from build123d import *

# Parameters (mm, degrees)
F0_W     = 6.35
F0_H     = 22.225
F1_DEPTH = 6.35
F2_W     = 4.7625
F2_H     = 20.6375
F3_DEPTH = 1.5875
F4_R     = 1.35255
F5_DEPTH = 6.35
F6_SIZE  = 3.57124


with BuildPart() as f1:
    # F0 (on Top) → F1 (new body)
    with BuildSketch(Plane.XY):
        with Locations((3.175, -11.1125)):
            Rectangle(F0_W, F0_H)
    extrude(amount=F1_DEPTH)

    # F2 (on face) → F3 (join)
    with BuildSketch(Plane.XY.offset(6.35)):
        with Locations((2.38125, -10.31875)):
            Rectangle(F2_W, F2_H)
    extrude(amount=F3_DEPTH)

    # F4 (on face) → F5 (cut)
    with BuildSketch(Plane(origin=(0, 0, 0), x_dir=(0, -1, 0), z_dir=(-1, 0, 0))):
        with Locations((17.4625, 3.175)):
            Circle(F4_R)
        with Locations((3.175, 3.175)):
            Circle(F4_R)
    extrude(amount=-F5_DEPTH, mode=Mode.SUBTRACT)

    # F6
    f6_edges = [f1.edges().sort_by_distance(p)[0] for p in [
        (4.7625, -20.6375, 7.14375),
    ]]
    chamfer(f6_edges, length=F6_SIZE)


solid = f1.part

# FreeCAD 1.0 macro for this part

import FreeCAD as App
import Part
import Sketcher

V = App.Vector
Q = App.Units.Quantity


def edges_at(feature, points):
    """Names of the edges that pass closest to the given points."""
    edges = feature.Shape.Edges
    near = lambda p: min(range(len(edges)), key=lambda i: edges[i].distToShape(Part.Vertex(*p))[0])
    return sorted({f"Edge{near(p) + 1}" for p in points})

doc = App.newDocument("Part")
params = doc.addObject("Spreadsheet::Sheet", "Params")
for row, (alias, value) in enumerate([
    ("sketch1_width", "0.25 in"),
    ("sketch1_height", "0.875 in"),
    ("pad1_length", "0.25 in"),
    ("sketch2_width", "0.1875 in"),
    ("sketch2_height", "0.8125 in"),
    ("pad2_length", "0.0625 in"),
    ("pocket1_length", "0.25 in"),
    ("chamfer_size", "0.1406 in"),
], start=1):
    params.set(f"A{row}", alias)
    params.set(f"B{row}", "=" + value)
    params.setAlias(f"B{row}", alias)

body = doc.addObject("PartDesign::Body", "Body")

sketch1 = doc.addObject("Sketcher::SketchObject", "Sketch")
body.addObject(sketch1)
sketch1.AttachmentSupport = (doc.XY_Plane, [""])
sketch1.MapMode = "FlatFace"
sketch1.addGeometry(Part.LineSegment(V(0, 0, 0), V(0, -22, 0)), False)
sketch1.addGeometry(Part.LineSegment(V(0, -22, 0), V(6, -22, 0)), False)
sketch1.addGeometry(Part.LineSegment(V(6, -22, 0), V(6, 0, 0)), False)
sketch1.addGeometry(Part.LineSegment(V(6, 0, 0), V(0, 0, 0)), False)
sketch1.addConstraint(Sketcher.Constraint("Coincident", 0, 2, 1, 1))
sketch1.addConstraint(Sketcher.Constraint("Coincident", 1, 2, 2, 1))
sketch1.addConstraint(Sketcher.Constraint("Coincident", 2, 2, 3, 1))
sketch1.addConstraint(Sketcher.Constraint("Coincident", 3, 2, 0, 1))
sketch1.addConstraint(Sketcher.Constraint("Vertical", 0))
sketch1.addConstraint(Sketcher.Constraint("Horizontal", 1))
sketch1.addConstraint(Sketcher.Constraint("Vertical", 2))
sketch1.addConstraint(Sketcher.Constraint("Horizontal", 3))
sketch1.addConstraint(Sketcher.Constraint("Coincident", 3, 2, -1, 1))
sketch1.addConstraint(Sketcher.Constraint("DistanceX", 1, 1, 1, 2, Q("0.25 in")))
sketch1.addConstraint(Sketcher.Constraint("DistanceY", 0, 2, 0, 1, Q("0.875 in")))
sketch1.setExpression("Constraints[9]", "Params.sketch1_width")
sketch1.setExpression("Constraints[10]", "Params.sketch1_height")
pad1 = doc.addObject("PartDesign::Pad", "Pad")
body.addObject(pad1)
pad1.Profile = sketch1
pad1.setExpression("Length", "Params.pad1_length")

sketch2 = doc.addObject("Sketcher::SketchObject", "Sketch001")
body.addObject(sketch2)
sketch2.AttachmentSupport = (doc.XY_Plane, [""])
sketch2.MapMode = "FlatFace"
sketch2.AttachmentOffset = App.Placement(V(0, 0, 0.25 * 25.4), App.Rotation())
sketch2.addGeometry(Part.LineSegment(V(0, 0, 0), V(0, -20.6, 0)), False)
sketch2.addGeometry(Part.LineSegment(V(0, -20.6, 0), V(4.8, -20.6, 0)), False)
sketch2.addGeometry(Part.LineSegment(V(4.8, -20.6, 0), V(4.8, 0, 0)), False)
sketch2.addGeometry(Part.LineSegment(V(4.8, 0, 0), V(0, 0, 0)), False)
sketch2.addConstraint(Sketcher.Constraint("Coincident", 0, 2, 1, 1))
sketch2.addConstraint(Sketcher.Constraint("Coincident", 1, 2, 2, 1))
sketch2.addConstraint(Sketcher.Constraint("Coincident", 2, 2, 3, 1))
sketch2.addConstraint(Sketcher.Constraint("Coincident", 3, 2, 0, 1))
sketch2.addConstraint(Sketcher.Constraint("Vertical", 0))
sketch2.addConstraint(Sketcher.Constraint("Horizontal", 1))
sketch2.addConstraint(Sketcher.Constraint("Vertical", 2))
sketch2.addConstraint(Sketcher.Constraint("Horizontal", 3))
sketch2.addConstraint(Sketcher.Constraint("Coincident", 3, 2, -1, 1))
sketch2.addConstraint(Sketcher.Constraint("DistanceX", 1, 1, 1, 2, Q("0.1875 in")))
sketch2.addConstraint(Sketcher.Constraint("DistanceY", 0, 2, 0, 1, Q("0.8125 in")))
sketch2.setExpression("Constraints[9]", "Params.sketch2_width")
sketch2.setExpression("Constraints[10]", "Params.sketch2_height")
pad2 = doc.addObject("PartDesign::Pad", "Pad001")
body.addObject(pad2)
pad2.Profile = sketch2
pad2.setExpression("Length", "Params.pad2_length")

sketch3 = doc.addObject("Sketcher::SketchObject", "Sketch002")
body.addObject(sketch3)
sketch3.AttachmentSupport = (doc.YZ_Plane, [""])
sketch3.MapMode = "FlatFace"
sketch3.addGeometry(Part.Circle(V(-17.5, 3.2, 0), V(0, 0, 1), 1.4), False)
sketch3.addGeometry(Part.Circle(V(-3.2, 3.2, 0), V(0, 0, 1), 1.4), False)
sketch3.addConstraint(Sketcher.Constraint("Equal", 0, 1))
sketch3.addConstraint(Sketcher.Constraint("Horizontal", 0, 3, 1, 3))
sketch3.addConstraint(Sketcher.Constraint("Diameter", 0, Q("0.1065 in")))
sketch3.addConstraint(Sketcher.Constraint("DistanceX", 0, 3, -1, 1, Q("0.6875 in")))
sketch3.addConstraint(Sketcher.Constraint("DistanceY", -1, 1, 0, 3, Q("0.125 in")))
sketch3.addConstraint(Sketcher.Constraint("DistanceX", 1, 3, -1, 1, Q("0.125 in")))
pocket1 = doc.addObject("PartDesign::Pocket", "Pocket")
body.addObject(pocket1)
pocket1.Profile = sketch3
pocket1.setExpression("Length", "Params.pocket1_length")
pocket1.Reversed = True
doc.recompute()

chamfer = doc.addObject("PartDesign::Chamfer", "Chamfer")
body.addObject(chamfer)
chamfer.Base = (pocket1, edges_at(pocket1, [(4.763, -20.637, 7.144)]))
chamfer.setExpression("Size", "Params.chamfer_size")

doc.recompute()
